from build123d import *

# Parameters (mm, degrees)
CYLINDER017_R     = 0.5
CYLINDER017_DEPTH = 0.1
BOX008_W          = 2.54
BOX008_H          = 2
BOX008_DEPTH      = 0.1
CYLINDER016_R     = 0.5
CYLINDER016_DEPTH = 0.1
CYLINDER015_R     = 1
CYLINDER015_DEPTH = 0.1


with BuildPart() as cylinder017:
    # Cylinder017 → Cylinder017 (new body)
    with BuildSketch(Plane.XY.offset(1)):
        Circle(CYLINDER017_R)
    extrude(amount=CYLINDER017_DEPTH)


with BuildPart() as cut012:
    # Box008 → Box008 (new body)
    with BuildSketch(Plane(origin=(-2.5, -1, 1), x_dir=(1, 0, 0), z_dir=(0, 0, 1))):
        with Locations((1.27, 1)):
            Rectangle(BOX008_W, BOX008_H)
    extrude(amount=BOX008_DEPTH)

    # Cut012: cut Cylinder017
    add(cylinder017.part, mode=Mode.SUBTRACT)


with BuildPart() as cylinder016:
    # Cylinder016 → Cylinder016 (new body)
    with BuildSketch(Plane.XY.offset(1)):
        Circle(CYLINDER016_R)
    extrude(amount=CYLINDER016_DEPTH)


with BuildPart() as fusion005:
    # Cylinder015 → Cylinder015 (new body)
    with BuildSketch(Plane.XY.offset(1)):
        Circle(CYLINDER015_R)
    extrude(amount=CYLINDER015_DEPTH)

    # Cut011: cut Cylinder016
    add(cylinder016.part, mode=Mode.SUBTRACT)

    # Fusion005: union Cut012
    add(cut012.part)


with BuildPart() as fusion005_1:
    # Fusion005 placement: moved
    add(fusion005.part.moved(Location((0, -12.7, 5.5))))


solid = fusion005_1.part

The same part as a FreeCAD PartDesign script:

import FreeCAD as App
import Part
import Sketcher
Q = App.Units.Quantity

doc = App.newDocument("Part")
params = doc.addObject("Spreadsheet::Sheet", "Params")
for row, (alias, value) in enumerate([
    ("sketch1_diameter", "1 mm"),
    ("pad1_length", "0.1 mm"),
    ("sketch2_height", "2 mm"),
    ("sketch2_width", "2.54 mm"),
    ("pad2_length", "0.1 mm"),
    ("sketch3_diameter", "1 mm"),
    ("pad3_length", "0.1 mm"),
    ("sketch4_diameter", "2 mm"),
    ("pad4_length", "0.1 mm"),
], start=1):
    params.set(f"A{row}", alias)
    params.set(f"B{row}", "=" + value)
    params.setAlias(f"B{row}", alias)

body = doc.addObject("PartDesign::Body", "Body")

sketch1 = body.newObject("Sketcher::SketchObject", "Sketch")
sketch1.AttachmentSupport = (doc.getObject("XY_Plane"), [""])
sketch1.MapMode = "FlatFace"
sketch1.AttachmentOffset = App.Placement(App.Vector(0, 0, 1), App.Rotation())
sketch1.addGeometry(Part.Circle(App.Vector(0, 0, 0), App.Vector(0, 0, 1), 0.5), False)
sketch1.addConstraint([
    Sketcher.Constraint("Coincident", 0, 3, -1, 1),
    Sketcher.Constraint("Diameter", 0, Q("1 mm")),
])
sketch1.setExpression("Constraints[1]", "Params.sketch1_diameter")
pad1 = body.newObject("PartDesign::Pad", "Pad")
pad1.Profile = sketch1
pad1.setExpression("Length", "Params.pad1_length")
body2 = doc.addObject("PartDesign::Body", "Body001")

sketch2 = body2.newObject("Sketcher::SketchObject", "Sketch001")
sketch2.AttachmentSupport = (doc.getObject("XY_Plane001"), [""])
sketch2.MapMode = "FlatFace"
sketch2.AttachmentOffset = App.Placement(App.Vector(0, 0, 1), App.Rotation())
sketch2.addGeometry([
    Part.LineSegment(App.Vector(-2.5, 1, 0), App.Vector(-2.5, -1, 0)),
    Part.LineSegment(App.Vector(-2.5, -1, 0), App.Vector(0, -1, 0)),
    Part.LineSegment(App.Vector(0, -1, 0), App.Vector(0, 1, 0)),
    Part.LineSegment(App.Vector(0, 1, 0), App.Vector(-2.5, 1, 0)),
], False)
sketch2.addConstraint([
    Sketcher.Constraint("Coincident", 0, 2, 1, 1),
    Sketcher.Constraint("Coincident", 1, 2, 2, 1),
    Sketcher.Constraint("Coincident", 2, 2, 3, 1),
    Sketcher.Constraint("Coincident", 3, 2, 0, 1),
    Sketcher.Constraint("Vertical", 0),
    Sketcher.Constraint("Horizontal", 1),
    Sketcher.Constraint("Vertical", 2),
    Sketcher.Constraint("Horizontal", 3),
    Sketcher.Constraint("DistanceY", 0, 2, 0, 1, Q("2 mm")),
    Sketcher.Constraint("DistanceY", 0, 2, -1, 1, Q("1 mm")),
    Sketcher.Constraint("DistanceX", 1, 1, 1, 2, Q("2.54 mm")),
    Sketcher.Constraint("DistanceX", 0, 2, -1, 1, Q("2.5 mm")),
])
sketch2.setExpression("Constraints[8]", "Params.sketch2_height")
sketch2.setExpression("Constraints[10]", "Params.sketch2_width")
pad2 = body2.newObject("PartDesign::Pad", "Pad001")
pad2.Profile = sketch2
pad2.setExpression("Length", "Params.pad2_length")
doc.recompute()

boolean = body2.newObject("PartDesign::Boolean", "Boolean")
boolean.Type = "Cut"
boolean.addObjects([body])
body3 = doc.addObject("PartDesign::Body", "Body002")

sketch3 = body3.newObject("Sketcher::SketchObject", "Sketch002")
sketch3.AttachmentSupport = (doc.getObject("XY_Plane002"), [""])
sketch3.MapMode = "FlatFace"
sketch3.AttachmentOffset = App.Placement(App.Vector(0, 0, 1), App.Rotation())
sketch3.addGeometry(Part.Circle(App.Vector(0, 0, 0), App.Vector(0, 0, 1), 0.5), False)
sketch3.addConstraint([
    Sketcher.Constraint("Coincident", 0, 3, -1, 1),
    Sketcher.Constraint("Diameter", 0, Q("1 mm")),
])
sketch3.setExpression("Constraints[1]", "Params.sketch3_diameter")
pad3 = body3.newObject("PartDesign::Pad", "Pad002")
pad3.Profile = sketch3
pad3.setExpression("Length", "Params.pad3_length")
body4 = doc.addObject("PartDesign::Body", "Body003")

sketch4 = body4.newObject("Sketcher::SketchObject", "Sketch003")
sketch4.AttachmentSupport = (doc.getObject("XY_Plane003"), [""])
sketch4.MapMode = "FlatFace"
sketch4.AttachmentOffset = App.Placement(App.Vector(0, 0, 1), App.Rotation())
sketch4.addGeometry(Part.Circle(App.Vector(0, 0, 0), App.Vector(0, 0, 1), 1), False)
sketch4.addConstraint([
    Sketcher.Constraint("Coincident", 0, 3, -1, 1),
    Sketcher.Constraint("Diameter", 0, Q("2 mm")),
])
sketch4.setExpression("Constraints[1]", "Params.sketch4_diameter")
pad4 = body4.newObject("PartDesign::Pad", "Pad003")
pad4.Profile = sketch4
pad4.setExpression("Length", "Params.pad4_length")
doc.recompute()

boolean2 = body4.newObject("PartDesign::Boolean", "Boolean001")
boolean2.Type = "Cut"
boolean2.addObjects([body3])
doc.recompute()

boolean3 = body4.newObject("PartDesign::Boolean", "Boolean002")
boolean3.Type = "Fuse"
boolean3.addObjects([body2])
body5 = doc.addObject("PartDesign::Body", "Body004")
doc.recompute()

body4.Placement = App.Placement(App.Vector(0, -12.7, 5.5), App.Rotation(App.Vector(0, 0, 1), 0))
boolean4 = body5.newObject("PartDesign::Boolean", "Boolean003")
boolean4.Type = "Fuse"
boolean4.addObjects([body4])

doc.recompute()
